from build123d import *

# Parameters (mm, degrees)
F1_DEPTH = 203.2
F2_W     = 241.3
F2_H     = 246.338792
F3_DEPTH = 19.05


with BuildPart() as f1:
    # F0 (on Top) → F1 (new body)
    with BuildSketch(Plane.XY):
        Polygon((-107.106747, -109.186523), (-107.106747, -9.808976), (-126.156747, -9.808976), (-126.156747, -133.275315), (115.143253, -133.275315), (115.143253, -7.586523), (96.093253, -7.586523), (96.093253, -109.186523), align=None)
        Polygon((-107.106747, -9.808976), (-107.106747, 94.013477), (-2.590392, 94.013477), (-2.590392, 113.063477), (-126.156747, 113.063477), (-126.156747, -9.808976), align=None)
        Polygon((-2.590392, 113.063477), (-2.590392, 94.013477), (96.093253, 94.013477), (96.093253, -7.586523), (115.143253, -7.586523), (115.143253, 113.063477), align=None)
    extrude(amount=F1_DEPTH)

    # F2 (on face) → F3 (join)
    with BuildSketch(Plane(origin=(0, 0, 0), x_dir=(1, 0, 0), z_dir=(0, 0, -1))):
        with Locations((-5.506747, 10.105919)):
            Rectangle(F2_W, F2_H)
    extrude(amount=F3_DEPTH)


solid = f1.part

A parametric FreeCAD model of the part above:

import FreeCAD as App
import Part
import Sketcher

V = App.Vector
Q = App.Units.Quantity


def add_polygon(sketch, points):
    """Adds a closed chain of lines whose ends are joined by coincident constraints."""
    first, n = sketch.GeometryCount, len(points)
    for a, b in zip(points, points[1:] + points[:1]):
        sketch.addGeometry(Part.LineSegment(App.Vector(*a, 0), App.Vector(*b, 0)), False)
    for i in range(n):
        sketch.addConstraint(Sketcher.Constraint("Coincident", first + i, 2, first + (i + 1) % n, 1))

doc = App.newDocument("Part")
body = doc.addObject("PartDesign::Body", "Body")

# Sketch on XY plane
sketch1 = doc.addObject("Sketcher::SketchObject", "Sketch")
body.addObject(sketch1)
sketch1.AttachmentSupport = (doc.XY_Plane, [""])
sketch1.MapMode = "FlatFace"
add_polygon(sketch1, [(-126, 113), (-126, -133), (115, -133), (115, 113)])  # lines 0-3
add_polygon(sketch1, [(-107, -109), (-107, 94), (96, 94), (96, -109)])  # lines 4-7
sketch1.addConstraint([
    Sketcher.Constraint("Vertical", 0),
    Sketcher.Constraint("Horizontal", 1),
    Sketcher.Constraint("Vertical", 2),
    Sketcher.Constraint("Horizontal", 3),
    Sketcher.Constraint("Vertical", 4),
    Sketcher.Constraint("Horizontal", 5),
    Sketcher.Constraint("Vertical", 6),
    Sketcher.Constraint("Horizontal", 7),
    Sketcher.Constraint("Equal", 7, 4),
    Sketcher.Constraint("DistanceX", 5, 1, 5, 2, Q("8 in")),
    Sketcher.Constraint("DistanceX", 1, 1, 1, 2, Q("9.5 in")),
    Sketcher.Constraint("DistanceX", 3, 2, 4, 2, Q("0.75 in")),
    Sketcher.Constraint("DistanceY", 4, 2, 3, 2, Q("0.75 in")),
    Sketcher.Constraint("DistanceY", 0, 2, 0, 1, 246.338792),
    Sketcher.Constraint("DistanceX", 0, 2, -1, 1, 126.156747),
    Sketcher.Constraint("DistanceY", 0, 2, -1, 1, 133.275315),
])
pad1 = doc.addObject("PartDesign::Pad", "Pad")
body.addObject(pad1)
pad1.Profile = sketch1
pad1.Length = Q("8 in")

# Sketch on XY plane
sketch2 = doc.addObject("Sketcher::SketchObject", "Sketch001")
body.addObject(sketch2)
sketch2.AttachmentSupport = (doc.XY_Plane, [""])
sketch2.MapMode = "FlatFace"
add_polygon(sketch2, [(-126, -133), (-126, 113), (115, 113), (115, -133)])  # lines 0-3
sketch2.addConstraint([
    Sketcher.Constraint("Vertical", 0),
    Sketcher.Constraint("Horizontal", 1),
    Sketcher.Constraint("Vertical", 2),
    Sketcher.Constraint("Horizontal", 3),
    Sketcher.Constraint("DistanceX", 1, 1, 1, 2, Q("9.5 in")),
    Sketcher.Constraint("DistanceY", 0, 1, 0, 2, 246.338792),
    Sketcher.Constraint("DistanceX", 0, 2, -1, 1, 126.156747),
    Sketcher.Constraint("DistanceY", -1, 1, 0, 2, 113.063477),
])
pad2 = doc.addObject("PartDesign::Pad", "Pad001")
body.addObject(pad2)
pad2.Profile = sketch2
pad2.Length = Q("0.75 in")
pad2.Reversed = True

doc.recompute()
